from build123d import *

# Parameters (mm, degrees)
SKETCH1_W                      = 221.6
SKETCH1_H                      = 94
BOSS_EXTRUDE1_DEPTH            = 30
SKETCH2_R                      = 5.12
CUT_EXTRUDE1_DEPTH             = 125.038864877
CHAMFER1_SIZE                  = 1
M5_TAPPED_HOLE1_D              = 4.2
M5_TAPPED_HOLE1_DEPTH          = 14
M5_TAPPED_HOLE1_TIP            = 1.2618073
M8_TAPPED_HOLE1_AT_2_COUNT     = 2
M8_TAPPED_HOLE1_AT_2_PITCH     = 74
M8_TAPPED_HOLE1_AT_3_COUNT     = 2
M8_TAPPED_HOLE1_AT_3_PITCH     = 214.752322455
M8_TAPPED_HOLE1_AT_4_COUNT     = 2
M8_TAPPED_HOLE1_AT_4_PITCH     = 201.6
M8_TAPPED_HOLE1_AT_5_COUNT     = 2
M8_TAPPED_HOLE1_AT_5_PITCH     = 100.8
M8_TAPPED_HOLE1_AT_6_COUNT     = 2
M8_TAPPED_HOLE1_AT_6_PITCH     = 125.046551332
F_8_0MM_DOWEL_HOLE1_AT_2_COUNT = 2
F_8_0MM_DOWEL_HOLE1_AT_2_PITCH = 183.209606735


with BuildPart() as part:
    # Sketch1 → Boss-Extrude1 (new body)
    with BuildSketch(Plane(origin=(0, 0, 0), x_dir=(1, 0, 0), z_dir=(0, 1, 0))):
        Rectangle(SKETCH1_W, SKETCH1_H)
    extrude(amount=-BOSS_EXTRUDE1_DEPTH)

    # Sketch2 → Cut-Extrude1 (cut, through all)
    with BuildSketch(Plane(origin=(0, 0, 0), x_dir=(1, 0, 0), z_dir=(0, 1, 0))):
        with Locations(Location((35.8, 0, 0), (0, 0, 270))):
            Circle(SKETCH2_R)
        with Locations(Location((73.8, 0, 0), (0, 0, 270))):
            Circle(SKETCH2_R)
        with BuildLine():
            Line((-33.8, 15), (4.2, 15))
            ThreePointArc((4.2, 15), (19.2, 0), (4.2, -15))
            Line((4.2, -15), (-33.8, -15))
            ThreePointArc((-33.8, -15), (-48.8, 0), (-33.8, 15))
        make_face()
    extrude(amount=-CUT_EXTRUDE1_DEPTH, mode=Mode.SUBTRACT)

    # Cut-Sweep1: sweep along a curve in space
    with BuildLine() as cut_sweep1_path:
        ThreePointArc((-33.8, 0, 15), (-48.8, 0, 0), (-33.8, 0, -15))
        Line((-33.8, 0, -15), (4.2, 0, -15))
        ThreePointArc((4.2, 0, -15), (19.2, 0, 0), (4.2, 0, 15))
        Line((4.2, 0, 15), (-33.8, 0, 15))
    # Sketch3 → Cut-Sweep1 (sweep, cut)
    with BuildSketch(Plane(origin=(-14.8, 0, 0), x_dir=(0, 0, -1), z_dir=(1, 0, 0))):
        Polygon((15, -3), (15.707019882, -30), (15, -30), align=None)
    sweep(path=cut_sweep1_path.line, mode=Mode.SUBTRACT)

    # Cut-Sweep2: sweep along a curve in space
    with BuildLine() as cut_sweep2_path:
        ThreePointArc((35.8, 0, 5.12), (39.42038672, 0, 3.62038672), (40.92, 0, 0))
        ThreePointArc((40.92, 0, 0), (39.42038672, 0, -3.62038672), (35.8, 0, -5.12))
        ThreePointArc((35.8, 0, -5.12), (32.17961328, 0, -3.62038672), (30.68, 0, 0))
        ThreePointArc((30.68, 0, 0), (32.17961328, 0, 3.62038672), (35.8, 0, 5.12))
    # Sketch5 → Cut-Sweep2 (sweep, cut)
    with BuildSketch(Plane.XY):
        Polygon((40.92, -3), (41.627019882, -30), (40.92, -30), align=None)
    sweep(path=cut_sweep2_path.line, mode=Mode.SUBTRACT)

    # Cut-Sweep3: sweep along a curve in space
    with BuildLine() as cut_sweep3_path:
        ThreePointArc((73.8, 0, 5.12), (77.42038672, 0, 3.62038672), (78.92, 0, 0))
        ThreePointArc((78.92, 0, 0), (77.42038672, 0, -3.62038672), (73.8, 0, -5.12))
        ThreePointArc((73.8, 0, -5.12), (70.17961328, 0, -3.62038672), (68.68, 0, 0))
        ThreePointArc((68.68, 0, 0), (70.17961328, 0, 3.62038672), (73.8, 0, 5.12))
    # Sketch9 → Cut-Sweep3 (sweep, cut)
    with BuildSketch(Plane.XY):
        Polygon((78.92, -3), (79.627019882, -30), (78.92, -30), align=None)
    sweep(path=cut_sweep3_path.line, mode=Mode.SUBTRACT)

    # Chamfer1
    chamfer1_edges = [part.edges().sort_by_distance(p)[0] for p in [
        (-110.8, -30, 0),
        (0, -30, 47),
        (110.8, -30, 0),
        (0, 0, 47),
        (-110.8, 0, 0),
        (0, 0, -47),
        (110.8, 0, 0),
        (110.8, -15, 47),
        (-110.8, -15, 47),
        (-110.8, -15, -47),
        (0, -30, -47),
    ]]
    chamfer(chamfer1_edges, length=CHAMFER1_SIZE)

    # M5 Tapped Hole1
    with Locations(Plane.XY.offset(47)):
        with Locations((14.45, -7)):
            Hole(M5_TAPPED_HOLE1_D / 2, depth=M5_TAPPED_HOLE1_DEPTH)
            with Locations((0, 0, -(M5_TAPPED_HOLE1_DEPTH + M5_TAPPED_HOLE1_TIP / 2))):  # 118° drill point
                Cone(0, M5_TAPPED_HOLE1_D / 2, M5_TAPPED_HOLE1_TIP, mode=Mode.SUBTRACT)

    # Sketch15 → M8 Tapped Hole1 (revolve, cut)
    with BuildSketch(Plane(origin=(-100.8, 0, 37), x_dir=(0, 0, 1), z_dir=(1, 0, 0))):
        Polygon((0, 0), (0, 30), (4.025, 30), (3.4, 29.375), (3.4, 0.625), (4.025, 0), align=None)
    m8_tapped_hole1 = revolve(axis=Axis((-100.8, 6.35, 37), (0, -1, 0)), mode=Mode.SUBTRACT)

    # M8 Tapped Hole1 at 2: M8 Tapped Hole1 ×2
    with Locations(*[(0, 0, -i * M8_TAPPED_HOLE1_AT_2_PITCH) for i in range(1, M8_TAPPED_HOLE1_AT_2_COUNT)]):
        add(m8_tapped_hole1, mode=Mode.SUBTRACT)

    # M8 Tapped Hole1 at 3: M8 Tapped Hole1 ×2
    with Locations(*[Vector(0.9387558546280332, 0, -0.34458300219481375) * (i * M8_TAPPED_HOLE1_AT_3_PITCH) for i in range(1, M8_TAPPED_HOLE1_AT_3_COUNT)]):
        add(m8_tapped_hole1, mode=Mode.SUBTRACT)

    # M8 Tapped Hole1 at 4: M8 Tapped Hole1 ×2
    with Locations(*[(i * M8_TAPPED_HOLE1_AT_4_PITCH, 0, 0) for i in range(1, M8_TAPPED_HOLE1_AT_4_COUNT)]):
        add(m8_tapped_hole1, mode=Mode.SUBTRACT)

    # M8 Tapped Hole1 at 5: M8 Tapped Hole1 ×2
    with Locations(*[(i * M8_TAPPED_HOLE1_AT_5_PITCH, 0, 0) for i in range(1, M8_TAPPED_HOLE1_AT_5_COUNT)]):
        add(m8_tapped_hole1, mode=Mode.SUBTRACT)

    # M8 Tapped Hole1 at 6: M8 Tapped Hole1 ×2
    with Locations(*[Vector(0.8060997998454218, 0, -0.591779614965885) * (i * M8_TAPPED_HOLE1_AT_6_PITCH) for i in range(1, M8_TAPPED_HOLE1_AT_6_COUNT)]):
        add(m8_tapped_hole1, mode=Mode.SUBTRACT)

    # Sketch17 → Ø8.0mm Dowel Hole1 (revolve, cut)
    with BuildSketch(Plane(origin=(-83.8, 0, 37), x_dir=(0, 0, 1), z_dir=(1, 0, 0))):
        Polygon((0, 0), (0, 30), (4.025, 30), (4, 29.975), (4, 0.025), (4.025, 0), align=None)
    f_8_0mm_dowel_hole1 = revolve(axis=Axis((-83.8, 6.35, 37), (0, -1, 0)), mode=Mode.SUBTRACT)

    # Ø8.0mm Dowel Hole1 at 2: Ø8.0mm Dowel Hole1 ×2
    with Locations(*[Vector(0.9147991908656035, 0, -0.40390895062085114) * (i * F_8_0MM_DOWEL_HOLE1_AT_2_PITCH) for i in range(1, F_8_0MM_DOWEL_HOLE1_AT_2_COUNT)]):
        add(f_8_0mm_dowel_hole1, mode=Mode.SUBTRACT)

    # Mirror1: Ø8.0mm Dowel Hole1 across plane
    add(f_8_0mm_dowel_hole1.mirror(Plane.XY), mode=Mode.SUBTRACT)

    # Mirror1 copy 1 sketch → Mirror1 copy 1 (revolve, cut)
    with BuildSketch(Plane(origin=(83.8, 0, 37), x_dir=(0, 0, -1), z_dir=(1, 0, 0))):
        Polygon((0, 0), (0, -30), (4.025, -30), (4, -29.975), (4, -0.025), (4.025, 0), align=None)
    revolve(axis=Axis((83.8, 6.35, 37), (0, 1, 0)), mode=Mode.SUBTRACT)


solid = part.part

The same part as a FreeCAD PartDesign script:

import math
import FreeCAD as App
import Part
import Sketcher

V = App.Vector
Q = App.Units.Quantity


def edges_at(feature, points):
    """Names of the edges that pass closest to the given points."""
    edges = feature.Shape.Edges
    near = lambda p: min(range(len(edges)), key=lambda i: edges[i].distToShape(Part.Vertex(*p))[0])
    return sorted({f"Edge{near(p) + 1}" for p in points})


def add_polygon(sketch, points):
    """Adds a closed chain of lines whose ends are joined by coincident constraints."""
    first, n = sketch.GeometryCount, len(points)
    for a, b in zip(points, points[1:] + points[:1]):
        sketch.addGeometry(Part.LineSegment(App.Vector(*a, 0), App.Vector(*b, 0)), False)
    for i in range(n):
        sketch.addConstraint(Sketcher.Constraint("Coincident", first + i, 2, first + (i + 1) % n, 1))

doc = App.newDocument("Part")
body = doc.addObject("PartDesign::Body", "Body")

sketch1 = body.newObject("Sketcher::SketchObject", "Sketch")
sketch1.AttachmentSupport = (doc.getObject("XZ_Plane"), [""])
sketch1.MapMode = "FlatFace"
add_polygon(sketch1, [(-110.8, -47), (-110.8, 47), (110.8, 47), (110.8, -47)])
sketch1.addConstraint([
    Sketcher.Constraint("Vertical", 0),
    Sketcher.Constraint("Horizontal", 1),
    Sketcher.Constraint("Vertical", 2),
    Sketcher.Constraint("Horizontal", 3),
    Sketcher.Constraint("Symmetric", 0, 2, 2, 2, -1, 1),
    Sketcher.Constraint("DistanceY", 0, 1, 0, 2, 94.0),
    Sketcher.Constraint("DistanceX", 1, 1, 1, 2, 221.6),
])
pad1 = body.newObject("PartDesign::Pad", "Pad")
pad1.Profile = sketch1
pad1.Length = 30

sketch2 = body.newObject("Sketcher::SketchObject", "Sketch001")
sketch2.AttachmentSupport = (doc.getObject("XZ_Plane"), [""])
sketch2.MapMode = "FlatFace"
sketch2.addGeometry([
    Part.Circle(V(35.8, 0, 0), V(0, 0, 1), 5.12),
    Part.Circle(V(73.8, 0, 0), V(0, 0, 1), 5.12),
    Part.LineSegment(V(4.2, -15, 0), V(-33.8, -15, 0)),
    Part.ArcOfCircle(Part.Circle(V(-33.8, 0, 0), V(0, 0, 1), 15), math.radians(90), math.radians(270)),
    Part.LineSegment(V(-33.8, 15, 0), V(4.2, 15, 0)),
    Part.ArcOfCircle(Part.Circle(V(4.2, 0, 0), V(0, 0, 1), 15), math.radians(-90), math.radians(90)),
], False)
sketch2.addConstraint([
    Sketcher.Constraint("Tangent", 2, 2, 3, 2),
    Sketcher.Constraint("Tangent", 3, 1, 4, 1),
    Sketcher.Constraint("Tangent", 4, 2, 5, 2),
    Sketcher.Constraint("Tangent", 5, 1, 2, 1),
    Sketcher.Constraint("Horizontal", 2),
    Sketcher.Constraint("Horizontal", 4),
    Sketcher.Constraint("Equal", 0, 1),
    Sketcher.Constraint("PointOnObject", 0, 3, -1),
    Sketcher.Constraint("PointOnObject", 1, 3, -1),
    Sketcher.Constraint("PointOnObject", 3, 3, -1),
    Sketcher.Constraint("Radius", 3, 15.0),
    Sketcher.Constraint("Diameter", 0, 10.24),
    Sketcher.Constraint("DistanceX", 2, 2, 2, 1, 38.0),
    Sketcher.Constraint("DistanceX", 0, 3, 1, 3, 38.0),
    Sketcher.Constraint("DistanceX", -1, 1, 0, 3, 35.8),
    Sketcher.Constraint("DistanceX", 3, 3, -1, 1, 33.8),
])
pocket1 = body.newObject("PartDesign::Pocket", "Pocket")
pocket1.Profile = sketch2
pocket1.Type = "ThroughAll"
pocket1.Reversed = True

sketch3 = body.newObject("Sketcher::SketchObject", "Sketch002")
sketch3.AttachmentSupport = (doc.getObject("YZ_Plane"), [""])
sketch3.MapMode = "FlatFace"
sketch3.AttachmentOffset = App.Placement(V(0, 0, -14.8), App.Rotation())
add_polygon(sketch3, [(-30, -15.70702), (-3, -15), (-30, -15)])
sketch3.addConstraint([
    Sketcher.Constraint("Horizontal", 1),
    Sketcher.Constraint("Vertical", 2),
    Sketcher.Constraint("DistanceX", 1, 2, 1, 1, 27.0),
    Sketcher.Constraint("DistanceX", 0, 2, -1, 1, 3.0),
    Sketcher.Constraint("DistanceY", 0, 2, -1, 1, 15.0),
    Sketcher.Constraint("Angle", 0, Q("1.5 deg")),
])

sketch4 = body.newObject("Sketcher::SketchObject", "Sketch003")
sketch4.AttachmentSupport = (doc.getObject("XZ_Plane"), [""])
sketch4.MapMode = "FlatFace"
sketch4.addGeometry([
    Part.ArcOfCircle(Part.Circle(V(-33.8, 0, 0), V(0, 0, 1), 15), math.radians(90), math.radians(270)),
    Part.LineSegment(V(-33.8, -15, 0), V(4.2, -15, 0)),
    Part.ArcOfCircle(Part.Circle(V(4.2, 0, 0), V(0, 0, 1), 15), math.radians(-90), math.radians(90)),
    Part.LineSegment(V(4.2, 15, 0), V(-33.8, 15, 0)),
], False)
sketch4.addConstraint([
    Sketcher.Constraint("Tangent", 0, 2, 1, 1),
    Sketcher.Constraint("Tangent", 1, 2, 2, 1),
    Sketcher.Constraint("Tangent", 2, 2, 3, 1),
    Sketcher.Constraint("Tangent", 3, 2, 0, 1),
    Sketcher.Constraint("Horizontal", 1),
    Sketcher.Constraint("Horizontal", 3),
    Sketcher.Constraint("PointOnObject", 0, 3, -1),
    Sketcher.Constraint("Radius", 0, 15.0),
    Sketcher.Constraint("DistanceX", 1, 1, 1, 2, 38.0),
    Sketcher.Constraint("DistanceX", 0, 3, -1, 1, 33.8),
])
doc.recompute()

subtractivepipe = body.newObject("PartDesign::SubtractivePipe", "SubtractivePipe")
subtractivepipe.Profile = sketch3
subtractivepipe.Spine = (sketch4, ["Edge1", "Edge2", "Edge3", "Edge4"])

sketch5 = body.newObject("Sketcher::SketchObject", "Sketch004")
sketch5.AttachmentSupport = (doc.getObject("XY_Plane"), [""])
sketch5.MapMode = "FlatFace"
add_polygon(sketch5, [(41.62702, -30), (40.92, -3), (40.92, -30)])
sketch5.addConstraint([
    Sketcher.Constraint("Vertical", 1),
    Sketcher.Constraint("Horizontal", 2),
    Sketcher.Constraint("DistanceY", 1, 2, 1, 1, 27.0),
    Sketcher.Constraint("DistanceY", 0, 2, -1, 1, 3.0),
    Sketcher.Constraint("Angle", 0, Q("91.5 deg")),
    Sketcher.Constraint("DistanceX", -1, 1, 0, 2, 40.92),
])

sketch6 = body.newObject("Sketcher::SketchObject", "Sketch005")
sketch6.AttachmentSupport = (doc.getObject("XZ_Plane"), [""])
sketch6.MapMode = "FlatFace"
sketch6.addGeometry([
    Part.ArcOfCircle(Part.Circle(V(35.8, 0, 0), V(0, 0, 1), 5.12), math.radians(0), math.radians(90)),
    Part.ArcOfCircle(Part.Circle(V(35.8, 0, 0), V(0, 0, 1), 5.12), math.radians(-90), math.radians(0)),
    Part.ArcOfCircle(Part.Circle(V(35.8, 0, 0), V(0, 0, 1), 5.12), math.radians(180), math.radians(270)),
    Part.ArcOfCircle(Part.Circle(V(35.8, 0, 0), V(0, 0, 1), 5.12), math.radians(90), math.radians(180)),
], False)
sketch6.addConstraint([
    Sketcher.Constraint("Tangent", 0, 1, 1, 2),
    Sketcher.Constraint("Tangent", 1, 1, 2, 2),
    Sketcher.Constraint("Tangent", 2, 1, 3, 2),
    Sketcher.Constraint("Tangent", 3, 1, 0, 2),
    Sketcher.Constraint("Equal", 0, 1),
    Sketcher.Constraint("Symmetric", 1, 1, 3, 1, -1),
    Sketcher.Constraint("PointOnObject", 0, 1, -1),
    Sketcher.Constraint("PointOnObject", 2, 1, -1),
    Sketcher.Constraint("Vertical", 3, 3, 1, 1),
    Sketcher.Constraint("Radius", 0, 5.12),
    Sketcher.Constraint("DistanceX", -1, 1, 0, 3, 35.8),
])
doc.recompute()

subtractivepipe2 = body.newObject("PartDesign::SubtractivePipe", "SubtractivePipe001")
subtractivepipe2.Profile = sketch5
subtractivepipe2.Spine = (sketch6, ["Edge1", "Edge2", "Edge3", "Edge4"])

sketch7 = body.newObject("Sketcher::SketchObject", "Sketch006")
sketch7.AttachmentSupport = (doc.getObject("XY_Plane"), [""])
sketch7.MapMode = "FlatFace"
add_polygon(sketch7, [(79.62702, -30), (78.92, -3), (78.92, -30)])
sketch7.addConstraint([
    Sketcher.Constraint("Vertical", 1),
    Sketcher.Constraint("Horizontal", 2),
    Sketcher.Constraint("DistanceY", 1, 2, 1, 1, 27.0),
    Sketcher.Constraint("DistanceY", 0, 2, -1, 1, 3.0),
    Sketcher.Constraint("Angle", 0, Q("91.5 deg")),
    Sketcher.Constraint("DistanceX", -1, 1, 0, 2, 78.92),
])

sketch8 = body.newObject("Sketcher::SketchObject", "Sketch007")
sketch8.AttachmentSupport = (doc.getObject("XZ_Plane"), [""])
sketch8.MapMode = "FlatFace"
sketch8.addGeometry([
    Part.ArcOfCircle(Part.Circle(V(73.8, 0, 0), V(0, 0, 1), 5.12), math.radians(0), math.radians(90)),
    Part.ArcOfCircle(Part.Circle(V(73.8, 0, 0), V(0, 0, 1), 5.12), math.radians(-90), math.radians(0)),
    Part.ArcOfCircle(Part.Circle(V(73.8, 0, 0), V(0, 0, 1), 5.12), math.radians(180), math.radians(270)),
    Part.ArcOfCircle(Part.Circle(V(73.8, 0, 0), V(0, 0, 1), 5.12), math.radians(90), math.radians(180)),
], False)
sketch8.addConstraint([
    Sketcher.Constraint("Tangent", 0, 1, 1, 2),
    Sketcher.Constraint("Tangent", 1, 1, 2, 2),
    Sketcher.Constraint("Tangent", 2, 1, 3, 2),
    Sketcher.Constraint("Tangent", 3, 1, 0, 2),
    Sketcher.Constraint("Equal", 0, 1),
    Sketcher.Constraint("Symmetric", 1, 1, 3, 1, -1),
    Sketcher.Constraint("PointOnObject", 0, 1, -1),
    Sketcher.Constraint("PointOnObject", 2, 1, -1),
    Sketcher.Constraint("Vertical", 3, 3, 1, 1),
    Sketcher.Constraint("Radius", 0, 5.12),
    Sketcher.Constraint("DistanceX", -1, 1, 0, 3, 73.8),
])
doc.recompute()

subtractivepipe3 = body.newObject("PartDesign::SubtractivePipe", "SubtractivePipe002")
subtractivepipe3.Profile = sketch7
subtractivepipe3.Spine = (sketch8, ["Edge1", "Edge2", "Edge3", "Edge4"])
doc.recompute()

chamfer = body.newObject("PartDesign::Chamfer", "Chamfer")
chamfer.Base = (subtractivepipe3, edges_at(subtractivepipe3, [
    (-110.8, -30, 0),
    (0, -30, 47),
    (110.8, -30, 0),
    (0, 0, 47),
    (-110.8, 0, 0),
    (0, 0, -47),
    (110.8, 0, 0),
    (110.8, -15, 47),
    (-110.8, -15, 47),
    (-110.8, -15, -47),
    (0, -30, -47),
]))
chamfer.Size = 1

sketch9 = body.newObject("Sketcher::SketchObject", "Sketch008")
sketch9.AttachmentSupport = (doc.getObject("XY_Plane"), [""])
sketch9.MapMode = "FlatFace"
sketch9.AttachmentOffset = App.Placement(V(0, 0, 47), App.Rotation())
sketch9.addGeometry(Part.Circle(V(14.45, -7, 0), V(0, 0, 1), 2.1), False)
sketch9.addConstraint([
    Sketcher.Constraint("Diameter", 0, 4.2),
    Sketcher.Constraint("DistanceY", 0, 3, -1, 1, 7.0),
    Sketcher.Constraint("DistanceX", -1, 1, 0, 3, 14.45),
])
doc.recompute()
hole = body.newObject("PartDesign::Hole", "Hole")
hole.Profile = sketch9
hole.ThreadType = "None"
hole.Diameter = 4.2
hole.DepthType = "Dimension"
hole.Depth = 14
hole.DrillPoint = "Angled"
hole.DrillPointAngle = 118

sketch10 = body.newObject("Sketcher::SketchObject", "Sketch009")
sketch10.AttachmentSupport = (doc.getObject("YZ_Plane"), [""])
sketch10.MapMode = "FlatFace"
sketch10.AttachmentOffset = App.Placement(V(0, 0, -100.8), App.Rotation())
add_polygon(sketch10, [(-30, 37), (0, 37), (0, 41.025), (-0.625, 40.4), (-29.375, 40.4), (-30, 41.025)])
sketch10.addGeometry(Part.LineSegment(V(0, 37, 0), V(-30, 37, 0)), True)
sketch10.addConstraint([
    Sketcher.Constraint("Horizontal", 0),
    Sketcher.Constraint("Vertical", 1),
    Sketcher.Constraint("Horizontal", 3),
    Sketcher.Constraint("Vertical", 5),
    Sketcher.Constraint("Horizontal", 6),
    Sketcher.Constraint("Coincident", 6, 1, 0, 2),
    Sketcher.Constraint("PointOnObject", 0, 2, -2),
    Sketcher.Constraint("Perpendicular", 2, 4),
    Sketcher.Constraint("Horizontal", 1, 2, 4, 2),
    Sketcher.Constraint("Vertical", 4, 2, 6, 2),
    Sketcher.Constraint("Equal", 2, 4),
    Sketcher.Constraint("DistanceX", 0, 1, 0, 2, 30.0),
    Sketcher.Constraint("DistanceY", -1, 1, 0, 2, 37.0),
    Sketcher.Constraint("DistanceX", 3, 2, 3, 1, 28.75),
    Sketcher.Constraint("DistanceY", -1, 1, 2, 2, 40.4),
])
groove = body.newObject("PartDesign::Groove", "Groove")
groove.Profile = sketch10
groove.ReferenceAxis = (sketch10, ["Axis0"])
groove.Angle = 360
doc.recompute()

linearpattern = body.newObject("PartDesign::LinearPattern", "LinearPattern")
linearpattern.Originals = [groove]
linearpattern.Direction = (doc.getObject("Z_Axis"), [""])
linearpattern.Mode = "offset"
linearpattern.Offset = 74
linearpattern.Occurrences = 2
linearpattern.Reversed = True
body.Tip = linearpattern
doc.recompute()

datumline = body.newObject("PartDesign::Line", "DatumLine")
datumline.Placement = App.Placement(V(0, 0, 0), App.Rotation(V(0, 0, 1), V(0.938755855, 0, -0.344583002)))
linearpattern2 = body.newObject("PartDesign::LinearPattern", "LinearPattern001")
linearpattern2.Originals = [groove]
linearpattern2.Direction = (datumline, [""])
linearpattern2.Mode = "offset"
linearpattern2.Offset = 214.752322
linearpattern2.Occurrences = 2
body.Tip = linearpattern2
doc.recompute()

linearpattern3 = body.newObject("PartDesign::LinearPattern", "LinearPattern002")
linearpattern3.Originals = [groove]
linearpattern3.Direction = (doc.getObject("X_Axis"), [""])
linearpattern3.Mode = "offset"
linearpattern3.Offset = 201.6
linearpattern3.Occurrences = 2
body.Tip = linearpattern3
doc.recompute()

linearpattern4 = body.newObject("PartDesign::LinearPattern", "LinearPattern003")
linearpattern4.Originals = [groove]
linearpattern4.Direction = (doc.getObject("X_Axis"), [""])
linearpattern4.Mode = "offset"
linearpattern4.Offset = 100.8
linearpattern4.Occurrences = 2
body.Tip = linearpattern4
doc.recompute()

datumline2 = body.newObject("PartDesign::Line", "DatumLine001")
datumline2.Placement = App.Placement(V(0, 0, 0), App.Rotation(V(0, 0, 1), V(0.8060998, 0, -0.591779615)))
linearpattern5 = body.newObject("PartDesign::LinearPattern", "LinearPattern004")
linearpattern5.Originals = [groove]
linearpattern5.Direction = (datumline2, [""])
linearpattern5.Mode = "offset"
linearpattern5.Offset = 125.046551
linearpattern5.Occurrences = 2
body.Tip = linearpattern5

sketch11 = body.newObject("Sketcher::SketchObject", "Sketch010")
sketch11.AttachmentSupport = (doc.getObject("YZ_Plane"), [""])
sketch11.MapMode = "FlatFace"
sketch11.AttachmentOffset = App.Placement(V(0, 0, -83.8), App.Rotation())
add_polygon(sketch11, [(-30, 37), (0, 37), (0, 41.025), (-0.025, 41), (-29.975, 41), (-30, 41.025)])
sketch11.addGeometry(Part.LineSegment(V(0, 37, 0), V(-30, 37, 0)), True)
sketch11.addConstraint([
    Sketcher.Constraint("Horizontal", 0),
    Sketcher.Constraint("Vertical", 1),
    Sketcher.Constraint("Horizontal", 3),
    Sketcher.Constraint("Vertical", 5),
    Sketcher.Constraint("Horizontal", 6),
    Sketcher.Constraint("Coincident", 6, 1, 0, 2),
    Sketcher.Constraint("PointOnObject", 0, 2, -2),
    Sketcher.Constraint("Perpendicular", 2, 4),
    Sketcher.Constraint("Horizontal", 1, 2, 4, 2),
    Sketcher.Constraint("Vertical", 4, 2, 6, 2),
    Sketcher.Constraint("Equal", 2, 4),
    Sketcher.Constraint("DistanceX", 0, 1, 0, 2, 30.0),
    Sketcher.Constraint("DistanceY", -1, 1, 0, 2, 37.0),
    Sketcher.Constraint("DistanceY", -1, 1, 2, 2, 41.0),
    Sketcher.Constraint("DistanceX", 3, 2, 3, 1, 29.95),
])
groove2 = body.newObject("PartDesign::Groove", "Groove001")
groove2.Profile = sketch11
groove2.ReferenceAxis = (sketch11, ["Axis0"])
groove2.Angle = 360
doc.recompute()

datumline3 = body.newObject("PartDesign::Line", "DatumLine002")
datumline3.Placement = App.Placement(V(0, 0, 0), App.Rotation(V(0, 0, 1), V(0.914799191, 0, -0.403908951)))
linearpattern6 = body.newObject("PartDesign::LinearPattern", "LinearPattern005")
linearpattern6.Originals = [groove2]
linearpattern6.Direction = (datumline3, [""])
linearpattern6.Mode = "offset"
linearpattern6.Offset = 183.209607
linearpattern6.Occurrences = 2
body.Tip = linearpattern6
doc.recompute()

mirrored = body.newObject("PartDesign::Mirrored", "Mirrored")
mirrored.Originals = [groove2]
mirrored.MirrorPlane = (doc.getObject("XY_Plane"), [""])
body.Tip = mirrored

sketch12 = body.newObject("Sketcher::SketchObject", "Sketch011")
sketch12.AttachmentSupport = (doc.getObject("YZ_Plane"), [""])
sketch12.MapMode = "FlatFace"
sketch12.AttachmentOffset = App.Placement(V(0, 0, 83.8), App.Rotation())
add_polygon(sketch12, [(0, 37), (-30, 37), (-30, 32.975), (-29.975, 33), (-0.025, 33), (0, 32.975)])
sketch12.addGeometry(Part.LineSegment(V(-30, 37, 0), V(0, 37, 0)), True)
sketch12.addConstraint([
    Sketcher.Constraint("Horizontal", 0),
    Sketcher.Constraint("Vertical", 1),
    Sketcher.Constraint("Horizontal", 3),
    Sketcher.Constraint("Vertical", 5),
    Sketcher.Constraint("Horizontal", 6),
    Sketcher.Constraint("Coincident", 6, 1, 0, 2),
    Sketcher.Constraint("PointOnObject", 4, 2, -2),
    Sketcher.Constraint("PointOnObject", 6, 2, -2),
    Sketcher.Constraint("Perpendicular", 2, 4),
    Sketcher.Constraint("Horizontal", 1, 2, 4, 2),
    Sketcher.Constraint("Equal", 2, 4),
    Sketcher.Constraint("DistanceX", 0, 2, 0, 1, 30.0),
    Sketcher.Constraint("DistanceY", -1, 1, 0, 2, 37.0),
    Sketcher.Constraint("DistanceY", -1, 1, 2, 2, 33.0),
    Sketcher.Constraint("DistanceX", 3, 1, 3, 2, 29.95),
])
groove3 = body.newObject("PartDesign::Groove", "Groove002")
groove3.Profile = sketch12
groove3.ReferenceAxis = (sketch12, ["Axis0"])
groove3.Angle = 360

doc.recompute()
